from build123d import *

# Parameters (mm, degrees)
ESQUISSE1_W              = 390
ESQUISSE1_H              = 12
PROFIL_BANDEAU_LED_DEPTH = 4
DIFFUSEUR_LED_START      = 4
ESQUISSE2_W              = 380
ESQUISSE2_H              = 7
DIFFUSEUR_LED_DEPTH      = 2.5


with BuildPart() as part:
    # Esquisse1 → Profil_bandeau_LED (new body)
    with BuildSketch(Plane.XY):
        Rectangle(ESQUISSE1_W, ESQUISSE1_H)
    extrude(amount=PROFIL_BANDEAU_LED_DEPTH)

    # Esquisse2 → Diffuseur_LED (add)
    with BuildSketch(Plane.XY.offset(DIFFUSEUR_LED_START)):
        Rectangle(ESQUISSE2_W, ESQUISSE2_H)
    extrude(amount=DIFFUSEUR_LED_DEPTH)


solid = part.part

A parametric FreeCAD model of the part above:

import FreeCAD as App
import Part
import Sketcher

V = App.Vector


def add_polygon(sketch, points):
    """Adds a closed chain of lines whose ends are joined by coincident constraints."""
    first, n = sketch.GeometryCount, len(points)
    for a, b in zip(points, points[1:] + points[:1]):
        sketch.addGeometry(Part.LineSegment(App.Vector(*a, 0), App.Vector(*b, 0)), False)
    for i in range(n):
        sketch.addConstraint(Sketcher.Constraint("Coincident", first + i, 2, first + (i + 1) % n, 1))

doc = App.newDocument("Part")
body = doc.addObject("PartDesign::Body", "Body")

# Sketch on XY plane
sketch1 = doc.addObject("Sketcher::SketchObject", "Sketch")
body.addObject(sketch1)
sketch1.AttachmentSupport = (doc.XY_Plane, [""])
sketch1.MapMode = "FlatFace"
add_polygon(sketch1, [(-195, 6), (-195, -6), (195, -6), (195, 6)])  # lines 0-3
sketch1.addConstraint([
    Sketcher.Constraint("Vertical", 0),
    Sketcher.Constraint("Horizontal", 1),
    Sketcher.Constraint("Vertical", 2),
    Sketcher.Constraint("Horizontal", 3),
    Sketcher.Constraint("Symmetric", 0, 2, 2, 2, -1, 1),
    Sketcher.Constraint("DistanceX", 1, 1, 1, 2, 390.0),
    Sketcher.Constraint("DistanceY", 0, 2, 0, 1, 12.0),
])
pad1 = doc.addObject("PartDesign::Pad", "Pad")
body.addObject(pad1)
pad1.Profile = sketch1
pad1.Length = 4

# Sketch on XY plane
sketch2 = doc.addObject("Sketcher::SketchObject", "Sketch001")
body.addObject(sketch2)
sketch2.AttachmentSupport = (doc.XY_Plane, [""])
sketch2.MapMode = "FlatFace"
sketch2.AttachmentOffset = App.Placement(V(0, 0, 4), App.Rotation())
add_polygon(sketch2, [(-190, 4), (-190, -4), (190, -4), (190, 4)])  # lines 0-3
sketch2.addConstraint([
    Sketcher.Constraint("Vertical", 0),
    Sketcher.Constraint("Horizontal", 1),
    Sketcher.Constraint("Vertical", 2),
    Sketcher.Constraint("Horizontal", 3),
    Sketcher.Constraint("Symmetric", 0, 2, 2, 2, -1, 1),
    Sketcher.Constraint("DistanceX", 1, 1, 1, 2, 380.0),
    Sketcher.Constraint("DistanceY", 0, 2, 0, 1, 7.0),
])
pad2 = doc.addObject("PartDesign::Pad", "Pad001")
body.addObject(pad2)
pad2.Profile = sketch2
pad2.Length = 2.5

doc.recompute()
